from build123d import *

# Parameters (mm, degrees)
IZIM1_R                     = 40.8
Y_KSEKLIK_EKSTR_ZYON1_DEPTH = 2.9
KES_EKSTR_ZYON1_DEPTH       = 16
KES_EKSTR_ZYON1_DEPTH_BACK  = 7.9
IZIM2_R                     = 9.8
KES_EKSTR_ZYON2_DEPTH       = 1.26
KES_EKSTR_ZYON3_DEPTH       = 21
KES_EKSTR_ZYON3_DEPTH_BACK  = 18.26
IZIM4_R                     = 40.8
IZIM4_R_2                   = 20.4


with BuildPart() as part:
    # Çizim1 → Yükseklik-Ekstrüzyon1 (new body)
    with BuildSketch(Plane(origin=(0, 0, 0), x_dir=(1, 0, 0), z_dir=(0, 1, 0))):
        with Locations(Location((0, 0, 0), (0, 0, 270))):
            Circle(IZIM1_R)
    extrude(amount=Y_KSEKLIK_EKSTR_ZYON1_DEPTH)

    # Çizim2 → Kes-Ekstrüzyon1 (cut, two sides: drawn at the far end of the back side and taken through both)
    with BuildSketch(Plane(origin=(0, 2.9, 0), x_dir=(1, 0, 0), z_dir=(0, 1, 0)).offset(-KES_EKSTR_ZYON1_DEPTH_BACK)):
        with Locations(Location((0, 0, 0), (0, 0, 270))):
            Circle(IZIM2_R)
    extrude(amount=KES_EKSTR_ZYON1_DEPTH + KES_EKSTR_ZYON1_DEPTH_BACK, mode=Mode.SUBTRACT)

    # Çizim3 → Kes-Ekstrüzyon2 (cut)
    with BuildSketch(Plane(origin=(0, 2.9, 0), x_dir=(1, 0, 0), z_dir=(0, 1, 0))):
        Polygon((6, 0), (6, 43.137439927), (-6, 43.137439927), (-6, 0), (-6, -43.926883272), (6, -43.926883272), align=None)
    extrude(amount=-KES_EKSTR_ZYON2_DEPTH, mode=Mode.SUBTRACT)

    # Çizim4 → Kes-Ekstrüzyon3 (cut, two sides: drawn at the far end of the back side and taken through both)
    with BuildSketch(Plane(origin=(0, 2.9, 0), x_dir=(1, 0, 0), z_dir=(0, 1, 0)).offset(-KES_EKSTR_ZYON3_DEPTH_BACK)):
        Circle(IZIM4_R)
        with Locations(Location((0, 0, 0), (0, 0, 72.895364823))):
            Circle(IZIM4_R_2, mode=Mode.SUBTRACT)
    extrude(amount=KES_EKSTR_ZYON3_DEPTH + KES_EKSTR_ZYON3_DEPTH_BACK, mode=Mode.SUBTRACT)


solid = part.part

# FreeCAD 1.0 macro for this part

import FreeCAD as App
import Part
import Sketcher

V = App.Vector


def add_polygon(sketch, points):
    """Adds a closed chain of lines whose ends are joined by coincident constraints."""
    first, n = sketch.GeometryCount, len(points)
    for a, b in zip(points, points[1:] + points[:1]):
        sketch.addGeometry(Part.LineSegment(App.Vector(*a, 0), App.Vector(*b, 0)), False)
    for i in range(n):
        sketch.addConstraint(Sketcher.Constraint("Coincident", first + i, 2, first + (i + 1) % n, 1))

doc = App.newDocument("Part")
body = doc.addObject("PartDesign::Body", "Body")

sketch1 = body.newObject("Sketcher::SketchObject", "Sketch")
sketch1.AttachmentSupport = (doc.getObject("XZ_Plane"), [""])
sketch1.MapMode = "FlatFace"
sketch1.addGeometry(Part.Circle(V(0, 0, 0), V(0, 0, 1), 41), False)
sketch1.addConstraint([
    Sketcher.Constraint("Coincident", 0, 3, -1, 1),
    Sketcher.Constraint("Diameter", 0, 81.6),
])
pad1 = body.newObject("PartDesign::Pad", "Pad")
pad1.Profile = sketch1
pad1.Length = 2.9
pad1.Reversed = True

sketch2 = body.newObject("Sketcher::SketchObject", "Sketch001")
sketch2.AttachmentSupport = (doc.getObject("XZ_Plane"), [""])
sketch2.MapMode = "FlatFace"
sketch2.AttachmentOffset = App.Placement(V(0, 0, -2.9), App.Rotation())
sketch2.addGeometry(Part.Circle(V(0, 0, 0), V(0, 0, 1), 10), False)
sketch2.addConstraint([
    Sketcher.Constraint("Coincident", 0, 3, -1, 1),
    Sketcher.Constraint("Diameter", 0, 19.6),
])
pocket1 = body.newObject("PartDesign::Pocket", "Pocket")
pocket1.Profile = sketch2
pocket1.Type = "ThroughAll"
pocket1.Midplane = True

sketch3 = body.newObject("Sketcher::SketchObject", "Sketch002")
sketch3.AttachmentSupport = (doc.getObject("XZ_Plane"), [""])
sketch3.MapMode = "FlatFace"
sketch3.AttachmentOffset = App.Placement(V(0, 0, -2.9), App.Rotation())
add_polygon(sketch3, [(6, -43), (-6, -43), (-6, 44), (6, 44)])
sketch3.addConstraint([
    Sketcher.Constraint("Horizontal", 0),
    Sketcher.Constraint("Vertical", 1),
    Sketcher.Constraint("Horizontal", 2),
    Sketcher.Constraint("Vertical", 3),
    Sketcher.Constraint("DistanceX", 0, 2, 0, 1, 12.0),
    Sketcher.Constraint("DistanceX", 0, 2, -1, 1, 6.0),
    Sketcher.Constraint("DistanceY", 1, 1, 1, 2, 87.064323),
    Sketcher.Constraint("DistanceY", 0, 2, -1, 1, 43.13744),
])
pocket2 = body.newObject("PartDesign::Pocket", "Pocket001")
pocket2.Profile = sketch3
pocket2.Length = 1.26
pocket2.Reversed = True

sketch4 = body.newObject("Sketcher::SketchObject", "Sketch003")
sketch4.AttachmentSupport = (doc.getObject("XZ_Plane"), [""])
sketch4.MapMode = "FlatFace"
sketch4.AttachmentOffset = App.Placement(V(0, 0, -2.9), App.Rotation())
sketch4.addGeometry([
    Part.Circle(V(0, 0, 0), V(0, 0, 1), 41),
    Part.Circle(V(0, 0, 0), V(0, 0, 1), 20),
], False)
sketch4.addConstraint([
    Sketcher.Constraint("Coincident", 0, 3, -1, 1),
    Sketcher.Constraint("Coincident", 1, 3, -1, 1),
    Sketcher.Constraint("Diameter", 0, 81.6),
    Sketcher.Constraint("Diameter", 1, 40.8),
])
pocket3 = body.newObject("PartDesign::Pocket", "Pocket002")
pocket3.Profile = sketch4
pocket3.Type = "ThroughAll"
pocket3.Midplane = True

doc.recompute()
